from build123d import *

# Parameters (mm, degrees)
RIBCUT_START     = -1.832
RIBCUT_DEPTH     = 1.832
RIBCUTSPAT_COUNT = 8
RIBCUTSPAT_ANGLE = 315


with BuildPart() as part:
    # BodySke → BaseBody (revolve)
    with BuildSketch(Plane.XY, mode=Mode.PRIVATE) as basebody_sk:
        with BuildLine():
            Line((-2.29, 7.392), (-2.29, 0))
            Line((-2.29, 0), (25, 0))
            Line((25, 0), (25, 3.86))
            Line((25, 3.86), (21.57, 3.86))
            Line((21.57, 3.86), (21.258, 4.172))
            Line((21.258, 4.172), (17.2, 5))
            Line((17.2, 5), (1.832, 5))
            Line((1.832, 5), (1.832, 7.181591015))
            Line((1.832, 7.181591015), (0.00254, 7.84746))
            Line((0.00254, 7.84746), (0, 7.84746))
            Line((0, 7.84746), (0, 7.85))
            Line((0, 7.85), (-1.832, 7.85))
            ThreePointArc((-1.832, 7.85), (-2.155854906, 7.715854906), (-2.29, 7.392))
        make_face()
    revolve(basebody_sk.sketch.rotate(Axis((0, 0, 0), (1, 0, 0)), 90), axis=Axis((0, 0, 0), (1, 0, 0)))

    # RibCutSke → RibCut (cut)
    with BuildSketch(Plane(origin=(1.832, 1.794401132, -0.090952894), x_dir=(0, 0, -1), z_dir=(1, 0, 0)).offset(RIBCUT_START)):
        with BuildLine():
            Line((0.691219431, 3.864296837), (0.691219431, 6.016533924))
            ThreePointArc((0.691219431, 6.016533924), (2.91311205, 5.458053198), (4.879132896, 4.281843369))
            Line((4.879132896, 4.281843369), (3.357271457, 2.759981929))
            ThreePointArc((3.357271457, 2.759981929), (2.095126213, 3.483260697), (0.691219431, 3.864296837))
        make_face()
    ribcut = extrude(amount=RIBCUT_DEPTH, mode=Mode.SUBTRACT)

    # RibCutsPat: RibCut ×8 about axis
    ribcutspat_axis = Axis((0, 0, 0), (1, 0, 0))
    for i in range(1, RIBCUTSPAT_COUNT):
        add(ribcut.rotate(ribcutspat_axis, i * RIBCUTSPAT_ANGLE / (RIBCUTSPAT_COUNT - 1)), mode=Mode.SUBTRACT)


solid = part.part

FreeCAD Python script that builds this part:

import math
import FreeCAD as App
import Part
import Sketcher

V = App.Vector
Q = App.Units.Quantity

doc = App.newDocument("Part")
body = doc.addObject("PartDesign::Body", "Body")

sketch1 = body.newObject("Sketcher::SketchObject", "Sketch")
sketch1.AttachmentSupport = (doc.getObject("XY_Plane"), [""])
sketch1.MapMode = "FlatFace"
sketch1.addGeometry([
    Part.LineSegment(V(-2.29, 7.392, 0), V(-2.29, 0, 0)),
    Part.LineSegment(V(-2.29, 0, 0), V(25, 0, 0)),
    Part.LineSegment(V(25, 0, 0), V(25, 3.86, 0)),
    Part.LineSegment(V(25, 3.86, 0), V(21.57, 3.86, 0)),
    Part.LineSegment(V(21.57, 3.86, 0), V(21.258, 4.172, 0)),
    Part.LineSegment(V(21.258, 4.172, 0), V(17.2, 5, 0)),
    Part.LineSegment(V(17.2, 5, 0), V(1.832, 5, 0)),
    Part.LineSegment(V(1.832, 5, 0), V(1.832, 7.1816, 0)),
    Part.LineSegment(V(1.832, 7.1816, 0), V(0.0025, 7.8475, 0)),
    Part.LineSegment(V(0.0025, 7.8475, 0), V(0, 7.8475, 0)),
    Part.LineSegment(V(0, 7.8475, 0), V(0, 7.85, 0)),
    Part.LineSegment(V(0, 7.85, 0), V(-1.832, 7.85, 0)),
    Part.ArcOfCircle(Part.Circle(V(-1.832, 7.392, 0), V(0, 0, 1), 0.458), math.radians(90), math.radians(180)),
], False)
sketch1.addConstraint([
    Sketcher.Constraint("Coincident", 0, 2, 1, 1),
    Sketcher.Constraint("Coincident", 1, 2, 2, 1),
    Sketcher.Constraint("Coincident", 2, 2, 3, 1),
    Sketcher.Constraint("Coincident", 3, 2, 4, 1),
    Sketcher.Constraint("Coincident", 4, 2, 5, 1),
    Sketcher.Constraint("Coincident", 5, 2, 6, 1),
    Sketcher.Constraint("Coincident", 6, 2, 7, 1),
    Sketcher.Constraint("Coincident", 7, 2, 8, 1),
    Sketcher.Constraint("Coincident", 8, 2, 9, 1),
    Sketcher.Constraint("Coincident", 9, 2, 10, 1),
    Sketcher.Constraint("Coincident", 10, 2, 11, 1),
    Sketcher.Constraint("Tangent", 11, 2, 12, 1),
    Sketcher.Constraint("Tangent", 12, 2, 0, 1),
    Sketcher.Constraint("Vertical", 0),
    Sketcher.Constraint("Horizontal", 1),
    Sketcher.Constraint("Vertical", 2),
    Sketcher.Constraint("Horizontal", 3),
    Sketcher.Constraint("Horizontal", 6),
    Sketcher.Constraint("Vertical", 7),
    Sketcher.Constraint("Horizontal", 9),
    Sketcher.Constraint("Vertical", 10),
    Sketcher.Constraint("Horizontal", 11),
    Sketcher.Constraint("PointOnObject", 0, 2, -1),
    Sketcher.Constraint("PointOnObject", 9, 2, -2),
    Sketcher.Constraint("Equal", 9, 10),
    Sketcher.Constraint("Angle", 4, Q("135 deg")),
    Sketcher.Constraint("Angle", 8, Q("160 deg")),
    Sketcher.Constraint("DistanceX", -1, 1, 1, 2, Q("25 mm")),
    Sketcher.Constraint("DistanceY", -1, 1, 5, 2, Q("5 mm")),
    Sketcher.Constraint("Radius", 12, Q("0.458 mm")),
    Sketcher.Constraint("DistanceX", 1, 1, 1, 2, Q("27.29 mm")),
    Sketcher.Constraint("DistanceX", 3, 2, 3, 1, Q("3.43 mm")),
    Sketcher.Constraint("DistanceY", 2, 1, 2, 2, Q("3.86 mm")),
    Sketcher.Constraint("DistanceX", -1, 1, 5, 2, Q("17.2 mm")),
    Sketcher.Constraint("DistanceX", 6, 2, 6, 1, Q("15.368 mm")),
    Sketcher.Constraint("DistanceY", 0, 2, 0, 1, Q("7.392 mm")),
    Sketcher.Constraint("DistanceX", 12, 3, 4, 2, Q("23.09 mm")),
    Sketcher.Constraint("DistanceX", 9, 2, 9, 1, Q("0.00254 mm")),
])
revolution = body.newObject("PartDesign::Revolution", "Revolution")
revolution.Profile = sketch1
revolution.ReferenceAxis = (sketch1, ["H_Axis"])
revolution.Angle = 360

sketch2 = body.newObject("Sketcher::SketchObject", "Sketch001")
sketch2.AttachmentSupport = (doc.getObject("YZ_Plane"), [""])
sketch2.MapMode = "FlatFace"
sketch2.addGeometry([
    Part.LineSegment(V(7.8, -0.8, 0), V(5.7, -0.8, 0)),
    Part.ArcOfCircle(Part.Circle(V(0, 0, 0), V(0, 0, 1), 5.7), math.radians(-37), math.radians(-8)),
    Part.LineSegment(V(4.6, -3.4, 0), V(6.1, -5, 0)),
    Part.ArcOfCircle(Part.Circle(V(0, 0, 0), V(0, 0, 1), 7.8), math.radians(-39), math.radians(-6)),
], False)
sketch2.addConstraint([
    Sketcher.Constraint("Coincident", 0, 2, 1, 2),
    Sketcher.Constraint("Coincident", 1, 1, 2, 1),
    Sketcher.Constraint("Coincident", 2, 2, 3, 1),
    Sketcher.Constraint("Coincident", 3, 2, 0, 1),
    Sketcher.Constraint("Horizontal", 0),
    Sketcher.Constraint("Coincident", 1, 3, -1, 1),
    Sketcher.Constraint("Coincident", 3, 3, -1, 1),
    Sketcher.Constraint("Angle", 2, Q("-45 deg")),
    Sketcher.Constraint("Radius", 3, Q("7.85 mm")),
    Sketcher.Constraint("Radius", 1, Q("5.7125 mm")),
    Sketcher.Constraint("DistanceX", 0, 2, 0, 1, Q("2.152237 mm")),
    Sketcher.Constraint("DistanceX", 1, 1, 2, 2, Q("1.521861 mm")),
])
pocket1 = body.newObject("PartDesign::Pocket", "Pocket")
pocket1.Profile = sketch2
pocket1.Length = 1.832
pocket1.Reversed = True
doc.recompute()

polarpattern = body.newObject("PartDesign::PolarPattern", "PolarPattern")
polarpattern.Originals = [pocket1]
polarpattern.Axis = (doc.getObject("X_Axis"), [""])
polarpattern.Angle = 360
polarpattern.Occurrences = 8
body.Tip = polarpattern

doc.recompute()
